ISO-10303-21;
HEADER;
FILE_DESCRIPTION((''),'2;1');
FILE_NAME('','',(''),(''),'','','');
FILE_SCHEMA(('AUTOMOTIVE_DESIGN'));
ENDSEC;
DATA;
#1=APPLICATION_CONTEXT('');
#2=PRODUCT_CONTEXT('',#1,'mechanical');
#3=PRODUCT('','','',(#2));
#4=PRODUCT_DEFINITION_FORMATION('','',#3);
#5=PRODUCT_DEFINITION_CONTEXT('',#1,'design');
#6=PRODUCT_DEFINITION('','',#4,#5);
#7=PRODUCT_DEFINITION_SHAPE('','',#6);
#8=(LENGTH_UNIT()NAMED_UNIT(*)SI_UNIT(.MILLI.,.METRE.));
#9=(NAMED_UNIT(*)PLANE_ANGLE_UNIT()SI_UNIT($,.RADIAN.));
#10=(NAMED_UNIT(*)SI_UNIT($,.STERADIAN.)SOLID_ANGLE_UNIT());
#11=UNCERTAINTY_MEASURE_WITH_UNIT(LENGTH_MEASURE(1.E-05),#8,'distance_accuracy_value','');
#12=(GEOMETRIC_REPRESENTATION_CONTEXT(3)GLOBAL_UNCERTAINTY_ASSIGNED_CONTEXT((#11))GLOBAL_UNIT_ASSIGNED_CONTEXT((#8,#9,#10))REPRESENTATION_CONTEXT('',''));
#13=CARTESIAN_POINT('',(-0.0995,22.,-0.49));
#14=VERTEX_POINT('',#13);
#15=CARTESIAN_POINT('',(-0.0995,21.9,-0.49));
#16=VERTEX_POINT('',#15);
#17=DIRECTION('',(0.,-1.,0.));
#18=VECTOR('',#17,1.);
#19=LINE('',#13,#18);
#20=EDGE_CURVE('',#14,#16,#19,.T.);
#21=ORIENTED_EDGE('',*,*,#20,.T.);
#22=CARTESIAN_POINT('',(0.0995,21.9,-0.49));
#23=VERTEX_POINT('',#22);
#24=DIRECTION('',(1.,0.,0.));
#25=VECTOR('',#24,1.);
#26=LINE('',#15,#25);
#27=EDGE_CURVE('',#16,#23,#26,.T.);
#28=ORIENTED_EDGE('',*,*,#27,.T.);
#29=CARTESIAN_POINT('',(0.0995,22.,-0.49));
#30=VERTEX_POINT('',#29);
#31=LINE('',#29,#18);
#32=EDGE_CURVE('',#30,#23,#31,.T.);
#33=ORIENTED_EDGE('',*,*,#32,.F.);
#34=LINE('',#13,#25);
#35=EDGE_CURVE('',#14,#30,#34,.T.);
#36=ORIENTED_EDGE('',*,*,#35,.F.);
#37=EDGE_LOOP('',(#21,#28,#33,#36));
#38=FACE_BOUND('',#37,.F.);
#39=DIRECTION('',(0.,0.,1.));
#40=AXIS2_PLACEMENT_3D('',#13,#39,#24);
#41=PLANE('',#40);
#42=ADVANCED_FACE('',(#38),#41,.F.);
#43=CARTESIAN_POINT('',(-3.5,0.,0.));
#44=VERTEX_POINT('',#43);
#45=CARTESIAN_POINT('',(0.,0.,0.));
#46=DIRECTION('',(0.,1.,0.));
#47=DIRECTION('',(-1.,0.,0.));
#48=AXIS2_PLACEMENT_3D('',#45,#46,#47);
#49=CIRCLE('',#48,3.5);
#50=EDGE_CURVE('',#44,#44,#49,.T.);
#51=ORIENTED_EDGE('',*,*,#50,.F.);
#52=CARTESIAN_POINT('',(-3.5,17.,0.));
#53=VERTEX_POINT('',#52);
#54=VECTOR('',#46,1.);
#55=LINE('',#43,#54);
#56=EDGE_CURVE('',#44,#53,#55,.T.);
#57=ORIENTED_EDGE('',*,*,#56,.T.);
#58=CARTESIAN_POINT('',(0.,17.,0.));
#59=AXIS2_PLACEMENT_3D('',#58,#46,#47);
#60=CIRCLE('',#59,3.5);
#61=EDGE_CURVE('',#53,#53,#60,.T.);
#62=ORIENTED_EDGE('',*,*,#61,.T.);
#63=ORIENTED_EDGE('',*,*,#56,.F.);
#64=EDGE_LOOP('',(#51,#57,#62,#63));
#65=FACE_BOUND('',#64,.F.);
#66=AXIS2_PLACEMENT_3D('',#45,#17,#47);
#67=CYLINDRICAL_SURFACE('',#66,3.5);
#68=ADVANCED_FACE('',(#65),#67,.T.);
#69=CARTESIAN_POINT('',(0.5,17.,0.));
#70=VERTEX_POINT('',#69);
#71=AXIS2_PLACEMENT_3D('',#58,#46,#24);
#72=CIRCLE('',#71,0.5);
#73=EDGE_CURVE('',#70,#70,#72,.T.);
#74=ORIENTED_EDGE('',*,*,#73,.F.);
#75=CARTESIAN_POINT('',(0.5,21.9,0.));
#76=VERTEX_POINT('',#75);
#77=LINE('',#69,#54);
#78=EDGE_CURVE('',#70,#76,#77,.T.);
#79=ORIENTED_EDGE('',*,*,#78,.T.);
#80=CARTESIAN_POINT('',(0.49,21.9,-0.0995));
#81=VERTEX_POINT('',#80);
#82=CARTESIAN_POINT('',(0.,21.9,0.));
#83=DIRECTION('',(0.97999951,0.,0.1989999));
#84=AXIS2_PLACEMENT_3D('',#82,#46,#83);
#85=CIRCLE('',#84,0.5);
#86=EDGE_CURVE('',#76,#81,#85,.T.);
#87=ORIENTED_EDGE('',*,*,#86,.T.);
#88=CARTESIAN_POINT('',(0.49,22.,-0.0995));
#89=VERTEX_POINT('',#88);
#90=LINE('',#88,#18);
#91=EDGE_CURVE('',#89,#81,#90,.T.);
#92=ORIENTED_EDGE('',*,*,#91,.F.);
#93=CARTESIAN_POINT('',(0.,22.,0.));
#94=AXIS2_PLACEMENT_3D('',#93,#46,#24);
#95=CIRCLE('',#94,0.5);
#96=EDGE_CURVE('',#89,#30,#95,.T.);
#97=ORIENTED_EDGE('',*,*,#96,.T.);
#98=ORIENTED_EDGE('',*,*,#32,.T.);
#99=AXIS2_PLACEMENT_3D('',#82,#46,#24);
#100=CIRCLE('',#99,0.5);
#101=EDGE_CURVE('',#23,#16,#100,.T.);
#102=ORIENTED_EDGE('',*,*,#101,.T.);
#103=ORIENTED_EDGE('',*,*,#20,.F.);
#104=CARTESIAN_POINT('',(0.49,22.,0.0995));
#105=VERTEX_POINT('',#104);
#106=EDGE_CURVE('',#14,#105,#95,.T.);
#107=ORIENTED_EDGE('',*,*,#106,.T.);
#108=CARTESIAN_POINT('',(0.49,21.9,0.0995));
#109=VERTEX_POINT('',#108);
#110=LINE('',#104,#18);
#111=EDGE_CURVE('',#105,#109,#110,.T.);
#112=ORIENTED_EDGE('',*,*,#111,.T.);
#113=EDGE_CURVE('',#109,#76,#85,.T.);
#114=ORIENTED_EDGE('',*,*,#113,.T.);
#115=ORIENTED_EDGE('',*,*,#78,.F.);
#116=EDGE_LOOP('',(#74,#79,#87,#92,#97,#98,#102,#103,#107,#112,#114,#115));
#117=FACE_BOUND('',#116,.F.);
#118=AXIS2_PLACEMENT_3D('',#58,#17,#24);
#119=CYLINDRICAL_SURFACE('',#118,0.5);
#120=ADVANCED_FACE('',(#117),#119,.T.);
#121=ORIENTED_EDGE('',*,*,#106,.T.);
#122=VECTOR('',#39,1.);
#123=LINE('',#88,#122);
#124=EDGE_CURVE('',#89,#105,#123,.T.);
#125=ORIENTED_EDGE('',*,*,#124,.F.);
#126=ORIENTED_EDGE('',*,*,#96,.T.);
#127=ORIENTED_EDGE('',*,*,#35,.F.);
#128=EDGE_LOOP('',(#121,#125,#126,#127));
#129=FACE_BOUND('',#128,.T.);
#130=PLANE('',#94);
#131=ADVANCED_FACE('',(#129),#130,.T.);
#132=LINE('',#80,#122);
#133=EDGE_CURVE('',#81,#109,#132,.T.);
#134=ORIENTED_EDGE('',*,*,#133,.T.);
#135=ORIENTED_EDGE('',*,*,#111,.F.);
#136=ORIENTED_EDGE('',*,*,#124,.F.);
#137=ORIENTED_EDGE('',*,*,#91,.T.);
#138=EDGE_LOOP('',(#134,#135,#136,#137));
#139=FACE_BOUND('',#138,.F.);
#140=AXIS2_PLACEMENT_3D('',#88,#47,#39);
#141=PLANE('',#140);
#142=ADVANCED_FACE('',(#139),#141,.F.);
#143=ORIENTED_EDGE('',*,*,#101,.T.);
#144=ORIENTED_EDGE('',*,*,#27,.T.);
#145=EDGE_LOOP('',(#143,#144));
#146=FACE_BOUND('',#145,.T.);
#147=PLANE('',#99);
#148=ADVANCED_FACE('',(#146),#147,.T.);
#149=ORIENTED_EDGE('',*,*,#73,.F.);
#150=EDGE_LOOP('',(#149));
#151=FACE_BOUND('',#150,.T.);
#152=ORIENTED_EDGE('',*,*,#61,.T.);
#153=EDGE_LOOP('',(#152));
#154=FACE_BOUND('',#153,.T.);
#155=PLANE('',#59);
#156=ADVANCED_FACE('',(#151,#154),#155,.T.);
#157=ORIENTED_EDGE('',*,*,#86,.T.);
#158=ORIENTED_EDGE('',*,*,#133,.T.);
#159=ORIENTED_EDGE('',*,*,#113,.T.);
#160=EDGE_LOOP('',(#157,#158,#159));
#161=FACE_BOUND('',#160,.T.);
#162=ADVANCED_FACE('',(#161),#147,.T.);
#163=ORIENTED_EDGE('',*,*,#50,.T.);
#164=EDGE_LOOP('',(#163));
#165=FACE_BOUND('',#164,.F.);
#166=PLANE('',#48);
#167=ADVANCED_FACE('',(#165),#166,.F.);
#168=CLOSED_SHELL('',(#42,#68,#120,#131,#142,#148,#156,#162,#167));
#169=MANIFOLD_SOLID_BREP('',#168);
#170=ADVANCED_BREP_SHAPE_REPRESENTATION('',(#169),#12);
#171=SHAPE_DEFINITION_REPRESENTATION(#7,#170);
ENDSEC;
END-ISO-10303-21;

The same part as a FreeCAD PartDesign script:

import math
import FreeCAD as App
import Part
import Sketcher
Q = App.Units.Quantity

doc = App.newDocument("Part")
body = doc.addObject("PartDesign::Body", "Body")

# Sketch on XZ plane
sketch1 = body.newObject("Sketcher::SketchObject", "Sketch")
sketch1.AttachmentSupport = (doc.getObject("XZ_Plane"), [""])
sketch1.MapMode = "FlatFace"
sketch1.addGeometry(Part.Circle(App.Vector(0, 0, 0), App.Vector(0, 0, 1), 3.5), False)
sketch1.addConstraint([
    Sketcher.Constraint("Coincident", 0, 3, -1, 1),
    Sketcher.Constraint("Diameter", 0, Q("7 mm")),
])
pad1 = body.newObject("PartDesign::Pad", "Pad")
pad1.Profile = sketch1
pad1.Length = 17
pad1.Reversed = True

# Sketch on XZ plane
sketch2 = body.newObject("Sketcher::SketchObject", "Sketch001")
sketch2.AttachmentSupport = (doc.getObject("XZ_Plane"), [""])
sketch2.MapMode = "FlatFace"
sketch2.AttachmentOffset = App.Placement(App.Vector(0, 0, -17), App.Rotation())
sketch2.addGeometry(Part.Circle(App.Vector(0, 0, 0), App.Vector(0, 0, 1), 0.5), False)
sketch2.addConstraint([
    Sketcher.Constraint("Coincident", 0, 3, -1, 1),
    Sketcher.Constraint("Diameter", 0, Q("1 mm")),
])
pad2 = body.newObject("PartDesign::Pad", "Pad001")
pad2.Profile = sketch2
pad2.Length = 5
pad2.Reversed = True

# Sketch on XZ plane
sketch3 = body.newObject("Sketcher::SketchObject", "Sketch002")
sketch3.AttachmentSupport = (doc.getObject("XZ_Plane"), [""])
sketch3.MapMode = "FlatFace"
sketch3.AttachmentOffset = App.Placement(App.Vector(0, 0, -22), App.Rotation())
sketch3.addGeometry([
    Part.ArcOfCircle(Part.Circle(App.Vector(0, 0, 0), App.Vector(0, 0, 1), 0.5), math.radians(-11), math.radians(11)),
    Part.LineSegment(App.Vector(0.49, -0.1, 0), App.Vector(0.49, 0.1, 0)),
    Part.LineSegment(App.Vector(-0.1, -0.49, 0), App.Vector(0.1, -0.49, 0)),
    Part.ArcOfCircle(Part.Circle(App.Vector(0, 0, 0), App.Vector(0, 0, 1), 0.5), math.radians(-101), math.radians(-79)),
], False)
sketch3.addConstraint([
    Sketcher.Constraint("Coincident", 0, 1, 1, 1),
    Sketcher.Constraint("Coincident", 1, 2, 0, 2),
    Sketcher.Constraint("Coincident", 2, 1, 3, 1),
    Sketcher.Constraint("Coincident", 3, 2, 2, 2),
    Sketcher.Constraint("Vertical", 1),
    Sketcher.Constraint("Horizontal", 2),
    Sketcher.Constraint("Coincident", 0, 3, -1, 1),
    Sketcher.Constraint("Coincident", 3, 3, -1, 1),
    Sketcher.Constraint("Equal", 0, 3),
    Sketcher.Constraint("Equal", 2, 1),
    Sketcher.Constraint("Radius", 0, Q("0.5 mm")),
    Sketcher.Constraint("DistanceX", -1, 1, 0, 1, Q("0.49 mm")),
])
pocket1 = body.newObject("PartDesign::Pocket", "Pocket")
pocket1.Profile = sketch3
pocket1.Length = 0.1
pocket1.Reversed = True

doc.recompute()
